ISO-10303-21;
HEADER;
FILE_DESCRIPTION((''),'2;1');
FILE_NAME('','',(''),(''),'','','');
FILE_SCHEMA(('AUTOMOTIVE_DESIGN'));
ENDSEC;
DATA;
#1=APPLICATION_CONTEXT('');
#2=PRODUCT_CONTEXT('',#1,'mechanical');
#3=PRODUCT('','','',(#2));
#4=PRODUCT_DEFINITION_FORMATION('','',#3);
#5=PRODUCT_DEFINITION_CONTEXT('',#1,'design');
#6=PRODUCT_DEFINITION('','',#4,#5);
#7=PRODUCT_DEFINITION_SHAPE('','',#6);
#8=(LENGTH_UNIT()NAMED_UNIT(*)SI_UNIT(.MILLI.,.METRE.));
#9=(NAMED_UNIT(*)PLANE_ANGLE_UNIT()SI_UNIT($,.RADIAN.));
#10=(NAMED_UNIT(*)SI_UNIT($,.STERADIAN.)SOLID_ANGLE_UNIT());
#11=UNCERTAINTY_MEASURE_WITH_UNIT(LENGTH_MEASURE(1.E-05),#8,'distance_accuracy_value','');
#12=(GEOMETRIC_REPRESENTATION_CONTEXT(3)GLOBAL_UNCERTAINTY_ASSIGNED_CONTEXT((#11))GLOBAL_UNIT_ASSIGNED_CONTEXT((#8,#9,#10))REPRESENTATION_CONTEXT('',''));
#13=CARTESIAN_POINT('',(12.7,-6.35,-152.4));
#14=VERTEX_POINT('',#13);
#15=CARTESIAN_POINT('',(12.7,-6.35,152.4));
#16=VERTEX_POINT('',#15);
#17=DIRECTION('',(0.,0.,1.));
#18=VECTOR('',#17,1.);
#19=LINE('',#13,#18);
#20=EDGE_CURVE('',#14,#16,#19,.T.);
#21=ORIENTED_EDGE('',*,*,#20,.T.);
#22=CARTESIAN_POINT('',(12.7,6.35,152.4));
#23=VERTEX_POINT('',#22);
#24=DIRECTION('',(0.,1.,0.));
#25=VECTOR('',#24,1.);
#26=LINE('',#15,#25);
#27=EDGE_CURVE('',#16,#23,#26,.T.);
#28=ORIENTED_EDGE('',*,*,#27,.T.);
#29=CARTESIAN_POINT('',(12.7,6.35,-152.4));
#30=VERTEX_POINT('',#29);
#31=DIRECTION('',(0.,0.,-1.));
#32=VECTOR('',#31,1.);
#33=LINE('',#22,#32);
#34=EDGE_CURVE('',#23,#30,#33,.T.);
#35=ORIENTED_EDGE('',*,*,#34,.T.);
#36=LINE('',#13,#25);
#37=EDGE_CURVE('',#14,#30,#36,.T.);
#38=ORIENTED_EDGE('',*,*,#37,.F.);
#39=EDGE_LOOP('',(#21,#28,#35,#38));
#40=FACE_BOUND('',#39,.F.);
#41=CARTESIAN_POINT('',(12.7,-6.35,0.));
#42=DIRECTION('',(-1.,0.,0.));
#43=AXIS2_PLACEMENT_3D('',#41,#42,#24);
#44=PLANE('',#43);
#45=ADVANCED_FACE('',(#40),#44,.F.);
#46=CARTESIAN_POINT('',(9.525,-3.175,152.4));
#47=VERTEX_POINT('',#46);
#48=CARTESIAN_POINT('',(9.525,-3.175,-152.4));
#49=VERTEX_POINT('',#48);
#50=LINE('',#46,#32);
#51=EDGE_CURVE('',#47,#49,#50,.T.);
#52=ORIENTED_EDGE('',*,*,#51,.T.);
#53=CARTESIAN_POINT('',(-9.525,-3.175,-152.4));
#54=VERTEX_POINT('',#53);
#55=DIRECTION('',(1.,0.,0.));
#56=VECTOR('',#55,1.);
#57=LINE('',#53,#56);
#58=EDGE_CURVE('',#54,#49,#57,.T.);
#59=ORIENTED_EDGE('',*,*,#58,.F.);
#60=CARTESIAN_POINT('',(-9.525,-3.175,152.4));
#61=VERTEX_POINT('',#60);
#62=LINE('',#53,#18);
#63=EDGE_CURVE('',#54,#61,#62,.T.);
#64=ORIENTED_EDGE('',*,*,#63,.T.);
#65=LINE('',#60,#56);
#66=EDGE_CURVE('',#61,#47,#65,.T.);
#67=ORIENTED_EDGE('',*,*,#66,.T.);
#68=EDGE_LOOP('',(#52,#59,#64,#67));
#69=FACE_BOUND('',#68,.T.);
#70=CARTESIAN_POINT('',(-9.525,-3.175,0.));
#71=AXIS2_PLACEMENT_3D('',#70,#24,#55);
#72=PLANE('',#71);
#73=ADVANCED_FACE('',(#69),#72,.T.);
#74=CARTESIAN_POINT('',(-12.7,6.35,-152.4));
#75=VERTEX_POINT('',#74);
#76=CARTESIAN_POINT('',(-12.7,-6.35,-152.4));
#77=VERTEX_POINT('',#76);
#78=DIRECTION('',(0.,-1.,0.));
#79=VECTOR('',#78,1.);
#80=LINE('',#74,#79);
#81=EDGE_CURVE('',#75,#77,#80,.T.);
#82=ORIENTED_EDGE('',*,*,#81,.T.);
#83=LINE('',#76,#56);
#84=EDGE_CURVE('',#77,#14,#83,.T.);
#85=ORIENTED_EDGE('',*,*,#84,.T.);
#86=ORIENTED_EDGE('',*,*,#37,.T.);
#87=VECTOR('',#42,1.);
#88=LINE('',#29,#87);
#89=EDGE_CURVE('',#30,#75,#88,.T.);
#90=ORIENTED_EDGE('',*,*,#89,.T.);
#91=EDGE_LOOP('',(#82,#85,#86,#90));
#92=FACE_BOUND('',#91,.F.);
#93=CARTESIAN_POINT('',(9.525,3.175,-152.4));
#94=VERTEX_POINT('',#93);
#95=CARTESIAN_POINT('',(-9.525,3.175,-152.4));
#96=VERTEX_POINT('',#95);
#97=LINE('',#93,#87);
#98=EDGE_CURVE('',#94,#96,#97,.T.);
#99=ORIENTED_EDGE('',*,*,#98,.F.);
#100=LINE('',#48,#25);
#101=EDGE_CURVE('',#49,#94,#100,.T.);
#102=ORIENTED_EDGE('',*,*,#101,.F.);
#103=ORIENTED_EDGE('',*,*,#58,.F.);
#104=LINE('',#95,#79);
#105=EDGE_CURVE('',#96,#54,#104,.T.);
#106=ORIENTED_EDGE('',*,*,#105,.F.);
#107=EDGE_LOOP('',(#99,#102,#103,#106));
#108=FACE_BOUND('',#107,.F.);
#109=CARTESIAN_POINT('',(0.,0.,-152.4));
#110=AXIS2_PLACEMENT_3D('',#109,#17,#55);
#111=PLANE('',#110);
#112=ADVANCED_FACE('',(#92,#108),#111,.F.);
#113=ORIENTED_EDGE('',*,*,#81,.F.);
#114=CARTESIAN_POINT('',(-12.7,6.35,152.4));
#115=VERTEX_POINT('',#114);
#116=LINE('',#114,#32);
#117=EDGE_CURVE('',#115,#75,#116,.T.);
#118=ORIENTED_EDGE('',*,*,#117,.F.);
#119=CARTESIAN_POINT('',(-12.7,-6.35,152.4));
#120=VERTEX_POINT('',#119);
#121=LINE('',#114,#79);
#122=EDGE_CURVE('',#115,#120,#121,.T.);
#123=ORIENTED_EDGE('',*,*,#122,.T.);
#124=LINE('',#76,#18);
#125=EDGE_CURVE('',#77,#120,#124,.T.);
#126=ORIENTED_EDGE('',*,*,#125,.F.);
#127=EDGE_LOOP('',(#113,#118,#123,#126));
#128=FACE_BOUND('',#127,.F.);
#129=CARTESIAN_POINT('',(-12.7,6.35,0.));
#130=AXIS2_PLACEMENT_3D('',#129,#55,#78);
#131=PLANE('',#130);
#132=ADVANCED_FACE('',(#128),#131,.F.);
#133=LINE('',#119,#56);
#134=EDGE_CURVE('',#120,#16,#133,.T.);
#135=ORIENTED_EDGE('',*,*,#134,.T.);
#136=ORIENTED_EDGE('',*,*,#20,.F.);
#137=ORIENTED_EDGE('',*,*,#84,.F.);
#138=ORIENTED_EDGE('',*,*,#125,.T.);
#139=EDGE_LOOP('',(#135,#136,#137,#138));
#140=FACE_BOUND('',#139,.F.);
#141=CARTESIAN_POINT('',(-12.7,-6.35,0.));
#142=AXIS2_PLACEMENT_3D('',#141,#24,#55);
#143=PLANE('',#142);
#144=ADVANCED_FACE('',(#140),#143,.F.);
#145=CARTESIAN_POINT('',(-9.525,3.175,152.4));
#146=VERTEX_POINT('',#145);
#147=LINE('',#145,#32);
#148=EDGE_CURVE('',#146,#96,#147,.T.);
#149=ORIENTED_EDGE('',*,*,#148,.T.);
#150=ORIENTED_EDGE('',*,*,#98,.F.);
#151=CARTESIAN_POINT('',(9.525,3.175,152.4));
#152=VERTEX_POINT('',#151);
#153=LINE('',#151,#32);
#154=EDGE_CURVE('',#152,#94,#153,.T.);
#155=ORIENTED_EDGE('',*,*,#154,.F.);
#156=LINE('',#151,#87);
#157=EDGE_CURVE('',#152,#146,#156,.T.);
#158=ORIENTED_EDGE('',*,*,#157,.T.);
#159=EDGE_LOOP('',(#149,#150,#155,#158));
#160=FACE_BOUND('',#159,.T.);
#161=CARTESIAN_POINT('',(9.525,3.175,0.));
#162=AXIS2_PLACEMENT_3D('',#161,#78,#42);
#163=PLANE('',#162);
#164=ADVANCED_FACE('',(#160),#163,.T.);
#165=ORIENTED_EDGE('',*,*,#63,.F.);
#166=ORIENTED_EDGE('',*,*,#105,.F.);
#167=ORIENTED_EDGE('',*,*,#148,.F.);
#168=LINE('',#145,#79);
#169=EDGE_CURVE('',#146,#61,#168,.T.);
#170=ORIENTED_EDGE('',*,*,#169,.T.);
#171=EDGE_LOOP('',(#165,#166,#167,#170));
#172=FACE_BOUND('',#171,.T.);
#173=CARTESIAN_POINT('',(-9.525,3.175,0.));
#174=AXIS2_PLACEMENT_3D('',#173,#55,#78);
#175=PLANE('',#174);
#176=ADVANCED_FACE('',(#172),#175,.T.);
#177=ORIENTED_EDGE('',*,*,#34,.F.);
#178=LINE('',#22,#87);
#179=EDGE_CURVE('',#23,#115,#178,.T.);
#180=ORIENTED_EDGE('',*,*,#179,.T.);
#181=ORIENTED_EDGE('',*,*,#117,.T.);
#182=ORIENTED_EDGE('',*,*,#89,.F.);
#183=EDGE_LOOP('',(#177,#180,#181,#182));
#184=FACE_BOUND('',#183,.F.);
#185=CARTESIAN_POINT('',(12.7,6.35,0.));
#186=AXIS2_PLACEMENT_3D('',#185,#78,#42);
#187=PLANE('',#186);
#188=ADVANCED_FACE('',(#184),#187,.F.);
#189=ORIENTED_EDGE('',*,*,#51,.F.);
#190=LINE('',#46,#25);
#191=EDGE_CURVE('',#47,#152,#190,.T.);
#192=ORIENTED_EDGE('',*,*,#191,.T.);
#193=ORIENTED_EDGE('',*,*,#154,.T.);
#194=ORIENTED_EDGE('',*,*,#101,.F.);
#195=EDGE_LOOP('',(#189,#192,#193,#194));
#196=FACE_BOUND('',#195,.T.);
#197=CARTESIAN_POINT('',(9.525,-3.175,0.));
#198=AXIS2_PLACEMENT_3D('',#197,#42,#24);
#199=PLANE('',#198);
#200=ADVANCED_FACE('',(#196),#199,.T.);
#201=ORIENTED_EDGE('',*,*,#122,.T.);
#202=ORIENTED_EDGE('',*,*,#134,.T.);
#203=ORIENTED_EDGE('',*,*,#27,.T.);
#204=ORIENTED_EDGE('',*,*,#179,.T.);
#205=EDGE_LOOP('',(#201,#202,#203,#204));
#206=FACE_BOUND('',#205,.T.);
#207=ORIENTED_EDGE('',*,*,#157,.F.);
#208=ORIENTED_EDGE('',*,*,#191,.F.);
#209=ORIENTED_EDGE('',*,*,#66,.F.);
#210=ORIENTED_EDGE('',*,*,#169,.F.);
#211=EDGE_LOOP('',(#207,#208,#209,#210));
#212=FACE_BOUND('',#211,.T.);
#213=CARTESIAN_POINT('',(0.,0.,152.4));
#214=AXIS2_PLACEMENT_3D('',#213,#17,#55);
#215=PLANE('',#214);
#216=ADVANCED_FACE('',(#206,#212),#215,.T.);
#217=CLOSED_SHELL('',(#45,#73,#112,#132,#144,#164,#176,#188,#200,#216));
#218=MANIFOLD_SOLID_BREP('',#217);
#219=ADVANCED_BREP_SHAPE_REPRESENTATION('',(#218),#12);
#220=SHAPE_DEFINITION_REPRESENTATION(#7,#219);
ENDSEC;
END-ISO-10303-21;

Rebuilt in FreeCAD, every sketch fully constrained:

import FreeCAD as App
import Part
import Sketcher
from FreeCAD import Vector
Q = App.Units.Quantity

doc = App.newDocument("Part")
params = doc.addObject("Spreadsheet::Sheet", "Params")
for row, (alias, value) in enumerate([
    ("sketch1_width", "1 in"),
    ("sketch1_height", "0.5 in"),
    ("pad1_length", "12 in"),
], start=1):
    params.set(f"A{row}", alias)
    params.set(f"B{row}", "=" + value)
    params.setAlias(f"B{row}", alias)

body = doc.addObject("PartDesign::Body", "Body")

sketch1 = doc.addObject("Sketcher::SketchObject", "Sketch")
body.addObject(sketch1)
sketch1.AttachmentSupport = (doc.XY_Plane, [""])
sketch1.MapMode = "FlatFace"
sketch1.addGeometry(Part.LineSegment(Vector(-13, 6, 0), Vector(-13, -6, 0)), False)
sketch1.addGeometry(Part.LineSegment(Vector(-13, -6, 0), Vector(13, -6, 0)), False)
sketch1.addGeometry(Part.LineSegment(Vector(13, -6, 0), Vector(13, 6, 0)), False)
sketch1.addGeometry(Part.LineSegment(Vector(13, 6, 0), Vector(-13, 6, 0)), False)
sketch1.addGeometry(Part.LineSegment(Vector(10, -3, 0), Vector(-10, -3, 0)), False)
sketch1.addGeometry(Part.LineSegment(Vector(-10, -3, 0), Vector(-10, 3, 0)), False)
sketch1.addGeometry(Part.LineSegment(Vector(-10, 3, 0), Vector(10, 3, 0)), False)
sketch1.addGeometry(Part.LineSegment(Vector(10, 3, 0), Vector(10, -3, 0)), False)
sketch1.addConstraint(Sketcher.Constraint("Coincident", 0, 2, 1, 1))
sketch1.addConstraint(Sketcher.Constraint("Coincident", 1, 2, 2, 1))
sketch1.addConstraint(Sketcher.Constraint("Coincident", 2, 2, 3, 1))
sketch1.addConstraint(Sketcher.Constraint("Coincident", 3, 2, 0, 1))
sketch1.addConstraint(Sketcher.Constraint("Coincident", 4, 2, 5, 1))
sketch1.addConstraint(Sketcher.Constraint("Coincident", 5, 2, 6, 1))
sketch1.addConstraint(Sketcher.Constraint("Coincident", 6, 2, 7, 1))
sketch1.addConstraint(Sketcher.Constraint("Coincident", 7, 2, 4, 1))
sketch1.addConstraint(Sketcher.Constraint("Vertical", 0))
sketch1.addConstraint(Sketcher.Constraint("Horizontal", 1))
sketch1.addConstraint(Sketcher.Constraint("Vertical", 2))
sketch1.addConstraint(Sketcher.Constraint("Horizontal", 3))
sketch1.addConstraint(Sketcher.Constraint("Horizontal", 4))
sketch1.addConstraint(Sketcher.Constraint("Vertical", 5))
sketch1.addConstraint(Sketcher.Constraint("Horizontal", 6))
sketch1.addConstraint(Sketcher.Constraint("Vertical", 7))
sketch1.addConstraint(Sketcher.Constraint("Symmetric", 0, 2, 2, 2, -1, 1))
sketch1.addConstraint(Sketcher.Constraint("Symmetric", 4, 2, 6, 2, -1, 1))
sketch1.addConstraint(Sketcher.Constraint("DistanceX", 1, 1, 1, 2, Q("1 in")))
sketch1.addConstraint(Sketcher.Constraint("DistanceY", 0, 2, 0, 1, Q("0.5 in")))
sketch1.addConstraint(Sketcher.Constraint("DistanceY", 4, 2, -1, 1, Q("0.125 in")))
sketch1.addConstraint(Sketcher.Constraint("DistanceX", 0, 2, 4, 2, Q("0.125 in")))
sketch1.setExpression("Constraints[18]", "Params.sketch1_width")
sketch1.setExpression("Constraints[19]", "Params.sketch1_height")
pad1 = doc.addObject("PartDesign::Pad", "Pad")
body.addObject(pad1)
pad1.Profile = sketch1
pad1.setExpression("Length", "Params.pad1_length")
pad1.Midplane = True

doc.recompute()
